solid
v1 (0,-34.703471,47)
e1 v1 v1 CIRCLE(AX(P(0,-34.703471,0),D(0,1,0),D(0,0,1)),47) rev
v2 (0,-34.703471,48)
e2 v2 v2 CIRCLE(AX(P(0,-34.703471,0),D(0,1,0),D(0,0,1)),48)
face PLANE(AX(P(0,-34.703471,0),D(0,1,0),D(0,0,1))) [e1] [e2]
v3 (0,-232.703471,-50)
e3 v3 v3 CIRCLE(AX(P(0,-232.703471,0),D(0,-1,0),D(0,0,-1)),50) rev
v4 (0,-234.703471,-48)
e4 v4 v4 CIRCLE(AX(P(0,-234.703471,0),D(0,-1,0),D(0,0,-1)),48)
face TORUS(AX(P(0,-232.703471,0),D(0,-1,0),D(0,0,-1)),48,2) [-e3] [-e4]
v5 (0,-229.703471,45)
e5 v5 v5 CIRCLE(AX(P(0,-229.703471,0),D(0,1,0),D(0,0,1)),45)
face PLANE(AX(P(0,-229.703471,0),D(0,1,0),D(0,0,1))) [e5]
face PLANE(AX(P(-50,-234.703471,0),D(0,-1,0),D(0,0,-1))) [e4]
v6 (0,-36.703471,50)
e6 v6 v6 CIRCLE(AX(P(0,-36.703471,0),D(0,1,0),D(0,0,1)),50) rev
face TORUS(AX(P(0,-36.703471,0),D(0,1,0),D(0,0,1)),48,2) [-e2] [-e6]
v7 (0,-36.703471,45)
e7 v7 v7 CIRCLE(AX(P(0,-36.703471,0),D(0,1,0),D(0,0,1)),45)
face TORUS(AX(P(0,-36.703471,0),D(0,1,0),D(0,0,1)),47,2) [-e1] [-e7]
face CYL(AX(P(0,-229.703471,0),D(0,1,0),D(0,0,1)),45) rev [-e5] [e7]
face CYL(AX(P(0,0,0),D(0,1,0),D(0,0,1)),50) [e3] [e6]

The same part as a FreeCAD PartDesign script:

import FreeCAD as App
import Part
import Sketcher

V = App.Vector
Q = App.Units.Quantity


def edges_at(feature, points):
    """Names of the edges that pass closest to the given points."""
    edges = feature.Shape.Edges
    near = lambda p: min(range(len(edges)), key=lambda i: edges[i].distToShape(Part.Vertex(*p))[0])
    return sorted({f"Edge{near(p) + 1}" for p in points})


def add_polygon(sketch, points):
    """Adds a closed chain of lines whose ends are joined by coincident constraints."""
    first, n = sketch.GeometryCount, len(points)
    for a, b in zip(points, points[1:] + points[:1]):
        sketch.addGeometry(Part.LineSegment(App.Vector(*a, 0), App.Vector(*b, 0)), False)
    for i in range(n):
        sketch.addConstraint(Sketcher.Constraint("Coincident", first + i, 2, first + (i + 1) % n, 1))

doc = App.newDocument("Part")
body = doc.addObject("PartDesign::Body", "Body")

sketch1 = body.newObject("Sketcher::SketchObject", "Sketch")
sketch1.AttachmentSupport = (doc.getObject("XY_Plane"), [""])
sketch1.MapMode = "FlatFace"
add_polygon(sketch1, [(-50, -35), (-50, -235), (0, -235), (0, -35)])
sketch1.addConstraint([
    Sketcher.Constraint("Vertical", 0),
    Sketcher.Constraint("Horizontal", 1),
    Sketcher.Constraint("Vertical", 2),
    Sketcher.Constraint("Horizontal", 3),
    Sketcher.Constraint("PointOnObject", 1, 2, -2),
    Sketcher.Constraint("DistanceX", 1, 1, 1, 2, Q("50 mm")),
    Sketcher.Constraint("DistanceY", 0, 2, 0, 1, Q("200 mm")),
    Sketcher.Constraint("DistanceY", 0, 2, -1, 1, Q("234.703471 mm")),
])
revolution = body.newObject("PartDesign::Revolution", "Revolution")
revolution.Profile = sketch1
revolution.ReferenceAxis = (sketch1, ["V_Axis"])
revolution.Angle = 360

sketch2 = body.newObject("Sketcher::SketchObject", "Sketch001")
sketch2.AttachmentSupport = (doc.getObject("XZ_Plane"), [""])
sketch2.MapMode = "FlatFace"
sketch2.AttachmentOffset = App.Placement(V(0, 0, 34.703471), App.Rotation())
sketch2.addGeometry(Part.Circle(V(0, 0, 0), V(0, 0, 1), 45), False)
sketch2.addConstraint([
    Sketcher.Constraint("Coincident", 0, 3, -1, 1),
    Sketcher.Constraint("Diameter", 0, Q("90 mm")),
])
pocket1 = body.newObject("PartDesign::Pocket", "Pocket")
pocket1.Profile = sketch2
pocket1.Length = 195
pocket1.Reversed = True
doc.recompute()

fillet = body.newObject("PartDesign::Fillet", "Fillet")
fillet.Base = (pocket1, edges_at(pocket1, [(0, -34.703, -50), (0, -34.703, -45)]))
fillet.Radius = 2
doc.recompute()

fillet2 = body.newObject("PartDesign::Fillet", "Fillet001")
fillet2.Base = (fillet, edges_at(fillet, [(0, -234.703, -50)]))
fillet2.Radius = 2

doc.recompute()
